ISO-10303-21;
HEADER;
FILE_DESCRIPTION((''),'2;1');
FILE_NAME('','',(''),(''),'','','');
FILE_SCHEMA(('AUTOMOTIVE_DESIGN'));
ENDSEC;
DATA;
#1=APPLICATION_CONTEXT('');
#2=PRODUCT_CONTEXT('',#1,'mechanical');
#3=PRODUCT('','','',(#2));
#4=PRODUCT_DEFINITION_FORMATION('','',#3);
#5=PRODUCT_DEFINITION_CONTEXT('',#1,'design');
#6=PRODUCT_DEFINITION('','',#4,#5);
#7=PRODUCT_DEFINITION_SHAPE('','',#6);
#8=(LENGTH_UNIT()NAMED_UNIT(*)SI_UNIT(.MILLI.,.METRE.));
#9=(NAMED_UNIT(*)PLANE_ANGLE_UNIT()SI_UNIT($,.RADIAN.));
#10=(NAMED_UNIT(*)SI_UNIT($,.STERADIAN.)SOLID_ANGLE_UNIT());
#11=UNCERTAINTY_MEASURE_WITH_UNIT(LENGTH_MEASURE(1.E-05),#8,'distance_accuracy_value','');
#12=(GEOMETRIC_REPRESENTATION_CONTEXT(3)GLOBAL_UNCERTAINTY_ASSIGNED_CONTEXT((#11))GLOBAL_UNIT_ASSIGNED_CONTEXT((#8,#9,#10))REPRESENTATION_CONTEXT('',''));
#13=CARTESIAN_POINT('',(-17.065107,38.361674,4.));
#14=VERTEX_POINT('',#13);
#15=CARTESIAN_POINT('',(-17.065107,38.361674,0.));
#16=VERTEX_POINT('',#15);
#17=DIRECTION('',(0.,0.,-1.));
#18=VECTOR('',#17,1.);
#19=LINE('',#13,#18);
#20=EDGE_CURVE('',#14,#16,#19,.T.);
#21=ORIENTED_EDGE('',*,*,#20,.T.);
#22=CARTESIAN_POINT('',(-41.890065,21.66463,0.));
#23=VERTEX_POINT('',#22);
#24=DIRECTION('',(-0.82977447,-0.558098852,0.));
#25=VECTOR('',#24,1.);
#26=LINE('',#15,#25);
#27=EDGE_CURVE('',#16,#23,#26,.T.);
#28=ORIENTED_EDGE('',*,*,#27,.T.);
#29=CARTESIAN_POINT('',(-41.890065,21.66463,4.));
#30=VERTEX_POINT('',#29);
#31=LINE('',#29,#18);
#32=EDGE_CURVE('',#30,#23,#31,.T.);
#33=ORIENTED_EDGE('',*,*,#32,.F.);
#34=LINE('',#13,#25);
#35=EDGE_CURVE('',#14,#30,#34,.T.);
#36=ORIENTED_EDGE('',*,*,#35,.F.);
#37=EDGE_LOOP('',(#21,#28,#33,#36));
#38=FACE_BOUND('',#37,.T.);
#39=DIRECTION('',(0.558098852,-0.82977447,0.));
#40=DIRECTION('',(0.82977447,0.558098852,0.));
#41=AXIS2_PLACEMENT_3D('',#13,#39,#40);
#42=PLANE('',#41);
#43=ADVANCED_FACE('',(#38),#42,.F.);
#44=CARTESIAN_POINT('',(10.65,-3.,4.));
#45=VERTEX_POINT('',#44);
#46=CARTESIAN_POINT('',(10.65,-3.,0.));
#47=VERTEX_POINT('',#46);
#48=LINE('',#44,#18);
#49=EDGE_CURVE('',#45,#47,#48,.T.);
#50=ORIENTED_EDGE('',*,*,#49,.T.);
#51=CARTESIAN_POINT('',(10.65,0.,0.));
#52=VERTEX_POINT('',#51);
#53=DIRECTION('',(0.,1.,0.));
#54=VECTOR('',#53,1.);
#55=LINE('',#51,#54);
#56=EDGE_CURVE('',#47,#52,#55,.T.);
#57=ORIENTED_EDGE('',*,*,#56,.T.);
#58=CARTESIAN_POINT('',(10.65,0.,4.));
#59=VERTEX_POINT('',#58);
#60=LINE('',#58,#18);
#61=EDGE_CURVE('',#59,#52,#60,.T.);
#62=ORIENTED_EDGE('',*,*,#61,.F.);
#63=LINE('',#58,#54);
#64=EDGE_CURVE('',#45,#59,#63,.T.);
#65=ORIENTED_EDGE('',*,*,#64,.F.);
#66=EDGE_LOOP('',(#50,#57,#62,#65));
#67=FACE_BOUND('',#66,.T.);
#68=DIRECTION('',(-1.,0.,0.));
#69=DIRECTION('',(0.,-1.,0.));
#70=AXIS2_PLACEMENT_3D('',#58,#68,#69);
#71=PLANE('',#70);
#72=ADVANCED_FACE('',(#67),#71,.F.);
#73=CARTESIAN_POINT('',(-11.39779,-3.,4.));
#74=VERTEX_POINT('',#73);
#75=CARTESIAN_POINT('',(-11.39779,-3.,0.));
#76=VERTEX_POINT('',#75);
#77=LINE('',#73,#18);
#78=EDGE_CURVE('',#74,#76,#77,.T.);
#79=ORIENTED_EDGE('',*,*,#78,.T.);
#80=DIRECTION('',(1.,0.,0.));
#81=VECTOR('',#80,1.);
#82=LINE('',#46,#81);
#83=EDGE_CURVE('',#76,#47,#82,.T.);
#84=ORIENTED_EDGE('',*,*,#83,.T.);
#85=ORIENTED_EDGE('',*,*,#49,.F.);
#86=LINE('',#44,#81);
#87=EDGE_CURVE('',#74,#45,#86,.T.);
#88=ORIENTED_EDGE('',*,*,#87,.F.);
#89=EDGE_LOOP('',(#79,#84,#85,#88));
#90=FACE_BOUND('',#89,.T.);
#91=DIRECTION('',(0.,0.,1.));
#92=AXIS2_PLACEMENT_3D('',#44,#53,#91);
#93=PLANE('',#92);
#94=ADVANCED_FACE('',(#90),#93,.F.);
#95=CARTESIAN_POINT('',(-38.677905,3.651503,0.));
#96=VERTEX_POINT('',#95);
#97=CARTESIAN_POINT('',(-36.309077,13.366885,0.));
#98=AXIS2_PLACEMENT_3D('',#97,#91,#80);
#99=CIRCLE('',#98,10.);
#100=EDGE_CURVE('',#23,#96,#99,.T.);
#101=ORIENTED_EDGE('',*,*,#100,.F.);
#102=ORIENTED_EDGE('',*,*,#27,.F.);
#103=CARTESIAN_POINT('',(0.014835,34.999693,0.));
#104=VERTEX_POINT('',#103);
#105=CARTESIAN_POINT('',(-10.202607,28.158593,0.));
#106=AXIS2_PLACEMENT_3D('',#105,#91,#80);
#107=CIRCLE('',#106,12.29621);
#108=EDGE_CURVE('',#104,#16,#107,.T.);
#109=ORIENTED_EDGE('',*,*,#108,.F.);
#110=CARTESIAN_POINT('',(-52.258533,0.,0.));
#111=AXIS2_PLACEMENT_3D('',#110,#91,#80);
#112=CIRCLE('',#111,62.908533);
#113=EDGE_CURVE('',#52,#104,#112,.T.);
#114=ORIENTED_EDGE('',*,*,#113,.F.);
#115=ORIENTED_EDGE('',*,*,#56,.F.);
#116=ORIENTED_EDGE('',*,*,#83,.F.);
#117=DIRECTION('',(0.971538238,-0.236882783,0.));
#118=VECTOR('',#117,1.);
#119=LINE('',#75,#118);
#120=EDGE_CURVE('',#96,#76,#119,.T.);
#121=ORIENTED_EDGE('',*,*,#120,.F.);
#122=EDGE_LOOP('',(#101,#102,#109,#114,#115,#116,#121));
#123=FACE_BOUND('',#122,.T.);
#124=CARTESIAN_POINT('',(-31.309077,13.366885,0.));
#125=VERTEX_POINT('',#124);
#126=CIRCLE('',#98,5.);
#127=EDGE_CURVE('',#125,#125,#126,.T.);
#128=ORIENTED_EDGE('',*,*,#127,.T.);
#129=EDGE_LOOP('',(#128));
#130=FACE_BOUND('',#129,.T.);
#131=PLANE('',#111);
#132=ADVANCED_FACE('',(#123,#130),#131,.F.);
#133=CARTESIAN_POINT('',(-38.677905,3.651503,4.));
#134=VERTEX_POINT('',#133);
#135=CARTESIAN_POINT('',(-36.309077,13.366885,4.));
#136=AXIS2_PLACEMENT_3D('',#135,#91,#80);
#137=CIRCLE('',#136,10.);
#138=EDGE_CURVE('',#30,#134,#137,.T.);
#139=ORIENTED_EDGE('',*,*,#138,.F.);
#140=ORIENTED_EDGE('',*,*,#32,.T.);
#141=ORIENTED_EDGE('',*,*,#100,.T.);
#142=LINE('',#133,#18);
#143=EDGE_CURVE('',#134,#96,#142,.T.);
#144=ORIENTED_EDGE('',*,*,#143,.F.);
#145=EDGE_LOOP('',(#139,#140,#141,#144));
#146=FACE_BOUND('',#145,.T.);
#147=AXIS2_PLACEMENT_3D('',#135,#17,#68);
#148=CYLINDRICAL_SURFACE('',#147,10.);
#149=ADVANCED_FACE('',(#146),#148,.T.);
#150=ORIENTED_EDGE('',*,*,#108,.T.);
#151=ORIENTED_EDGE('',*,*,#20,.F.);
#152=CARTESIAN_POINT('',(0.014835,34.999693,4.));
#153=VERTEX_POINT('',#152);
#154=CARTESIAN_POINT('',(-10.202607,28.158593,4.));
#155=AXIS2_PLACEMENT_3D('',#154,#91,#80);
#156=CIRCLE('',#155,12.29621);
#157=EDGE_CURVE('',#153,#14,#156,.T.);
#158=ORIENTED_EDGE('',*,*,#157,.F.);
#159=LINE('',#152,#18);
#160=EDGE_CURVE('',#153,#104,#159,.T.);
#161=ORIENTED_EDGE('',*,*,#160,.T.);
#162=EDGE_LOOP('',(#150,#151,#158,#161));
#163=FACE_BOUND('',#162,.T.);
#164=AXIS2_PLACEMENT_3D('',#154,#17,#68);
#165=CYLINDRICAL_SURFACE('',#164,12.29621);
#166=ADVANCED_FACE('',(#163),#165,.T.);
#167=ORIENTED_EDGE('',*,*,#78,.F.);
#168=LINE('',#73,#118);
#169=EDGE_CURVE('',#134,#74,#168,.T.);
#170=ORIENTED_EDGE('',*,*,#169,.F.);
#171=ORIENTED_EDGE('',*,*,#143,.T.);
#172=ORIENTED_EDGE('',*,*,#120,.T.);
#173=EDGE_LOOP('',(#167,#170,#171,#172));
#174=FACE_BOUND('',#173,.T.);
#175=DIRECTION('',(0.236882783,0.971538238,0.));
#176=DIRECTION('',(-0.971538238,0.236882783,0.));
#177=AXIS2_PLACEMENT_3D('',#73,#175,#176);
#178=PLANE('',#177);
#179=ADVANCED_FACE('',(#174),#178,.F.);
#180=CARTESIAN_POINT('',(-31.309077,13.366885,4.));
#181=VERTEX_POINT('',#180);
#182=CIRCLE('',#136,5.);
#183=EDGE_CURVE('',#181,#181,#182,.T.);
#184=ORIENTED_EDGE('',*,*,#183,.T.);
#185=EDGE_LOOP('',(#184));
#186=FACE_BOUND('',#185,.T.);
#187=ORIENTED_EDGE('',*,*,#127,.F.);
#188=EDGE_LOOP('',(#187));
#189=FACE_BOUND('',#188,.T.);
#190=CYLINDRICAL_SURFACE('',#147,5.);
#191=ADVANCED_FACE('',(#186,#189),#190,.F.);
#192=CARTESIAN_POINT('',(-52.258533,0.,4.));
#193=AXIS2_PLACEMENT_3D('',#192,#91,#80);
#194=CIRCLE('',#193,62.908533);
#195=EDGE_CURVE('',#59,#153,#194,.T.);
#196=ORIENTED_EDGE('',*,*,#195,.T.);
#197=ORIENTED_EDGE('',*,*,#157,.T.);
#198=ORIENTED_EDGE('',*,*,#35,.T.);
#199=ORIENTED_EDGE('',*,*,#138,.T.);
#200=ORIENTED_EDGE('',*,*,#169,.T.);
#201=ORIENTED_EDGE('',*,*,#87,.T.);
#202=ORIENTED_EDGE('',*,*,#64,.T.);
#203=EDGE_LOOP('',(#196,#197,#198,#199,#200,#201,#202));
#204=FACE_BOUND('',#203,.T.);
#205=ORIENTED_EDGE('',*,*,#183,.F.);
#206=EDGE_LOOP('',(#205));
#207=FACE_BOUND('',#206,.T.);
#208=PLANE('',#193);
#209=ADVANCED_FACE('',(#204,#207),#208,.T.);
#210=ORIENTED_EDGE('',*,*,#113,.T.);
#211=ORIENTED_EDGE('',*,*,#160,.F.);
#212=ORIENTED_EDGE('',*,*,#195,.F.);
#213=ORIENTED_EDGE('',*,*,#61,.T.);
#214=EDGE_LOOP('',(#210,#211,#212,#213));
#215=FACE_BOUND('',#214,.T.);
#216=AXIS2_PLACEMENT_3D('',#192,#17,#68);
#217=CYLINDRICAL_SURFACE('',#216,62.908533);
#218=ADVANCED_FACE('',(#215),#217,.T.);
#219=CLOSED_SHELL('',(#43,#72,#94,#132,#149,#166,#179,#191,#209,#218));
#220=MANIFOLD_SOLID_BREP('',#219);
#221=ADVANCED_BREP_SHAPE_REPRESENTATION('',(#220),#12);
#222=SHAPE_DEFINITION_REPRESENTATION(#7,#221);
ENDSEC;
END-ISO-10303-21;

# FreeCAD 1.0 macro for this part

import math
import FreeCAD as App
import Part
import Sketcher

V = App.Vector
Q = App.Units.Quantity

doc = App.newDocument("Part")
body = doc.addObject("PartDesign::Body", "Body")

sketch1 = doc.addObject("Sketcher::SketchObject", "Sketch")
body.addObject(sketch1)
sketch1.AttachmentSupport = (doc.XY_Plane, [""])
sketch1.MapMode = "FlatFace"
sketch1.addGeometry([
    Part.LineSegment(V(10.65, -3, 0), V(10.65, 0, 0)),
    Part.ArcOfCircle(Part.Circle(V(-52.258533, 0, 0), V(0, 0, 1), 62.908533), math.radians(0), math.radians(33.804331)),
    Part.ArcOfCircle(Part.Circle(V(-10.202607, 28.158593, 0), V(0, 0, 1), 12.29621), math.radians(33.804331), math.radians(123.924422)),
    Part.LineSegment(V(-17.065107, 38.361674, 0), V(-41.890065, 21.66463, 0)),
    Part.ArcOfCircle(Part.Circle(V(-36.309077, 13.366885, 0), V(0, 0, 1), 10), math.radians(123.924422), math.radians(256.297368)),
    Part.LineSegment(V(-38.677905, 3.651503, 0), V(-11.39779, -3, 0)),
    Part.LineSegment(V(-11.39779, -3, 0), V(10.65, -3, 0)),
    Part.Circle(V(-36.309077, 13.366885, 0), V(0, 0, 1), 5),
], False)
sketch1.addConstraint([
    Sketcher.Constraint("Tangent", 0, 2, 1, 1),
    Sketcher.Constraint("Tangent", 1, 2, 2, 1),
    Sketcher.Constraint("Tangent", 2, 2, 3, 1),
    Sketcher.Constraint("Tangent", 3, 2, 4, 1),
    Sketcher.Constraint("Tangent", 4, 2, 5, 1),
    Sketcher.Constraint("Coincident", 5, 2, 6, 1),
    Sketcher.Constraint("Coincident", 6, 2, 0, 1),
    Sketcher.Constraint("Vertical", 0),
    Sketcher.Constraint("Horizontal", 6),
    Sketcher.Constraint("Coincident", 7, 3, 4, 3),
    Sketcher.Constraint("PointOnObject", 1, 3, -1),
    Sketcher.Constraint("Diameter", 7, Q("10 mm")),
    Sketcher.Constraint("Radius", 4, Q("10 mm")),
    Sketcher.Constraint("DistanceY", 0, 1, 0, 2, Q("3 mm")),
    Sketcher.Constraint("DistanceX", -1, 1, 0, 2, Q("10.65 mm")),
    Sketcher.Constraint("Radius", 2, Q("12.29621 mm")),
    Sketcher.Constraint("Radius", 1, Q("62.908533 mm")),
    Sketcher.Constraint("Distance", 5, Q("28.079302 mm")),
    Sketcher.Constraint("DistanceX", 6, 1, 6, 2, Q("22.04779 mm")),
    Sketcher.Constraint("DistanceY", 2, 3, 1, 2, Q("6.8411 mm")),
    Sketcher.Constraint("DistanceX", 2, 2, 2, 3, Q("6.8625 mm")),
])
pad1 = doc.addObject("PartDesign::Pad", "Pad")
body.addObject(pad1)
pad1.Profile = sketch1
pad1.Length = 4

doc.recompute()
